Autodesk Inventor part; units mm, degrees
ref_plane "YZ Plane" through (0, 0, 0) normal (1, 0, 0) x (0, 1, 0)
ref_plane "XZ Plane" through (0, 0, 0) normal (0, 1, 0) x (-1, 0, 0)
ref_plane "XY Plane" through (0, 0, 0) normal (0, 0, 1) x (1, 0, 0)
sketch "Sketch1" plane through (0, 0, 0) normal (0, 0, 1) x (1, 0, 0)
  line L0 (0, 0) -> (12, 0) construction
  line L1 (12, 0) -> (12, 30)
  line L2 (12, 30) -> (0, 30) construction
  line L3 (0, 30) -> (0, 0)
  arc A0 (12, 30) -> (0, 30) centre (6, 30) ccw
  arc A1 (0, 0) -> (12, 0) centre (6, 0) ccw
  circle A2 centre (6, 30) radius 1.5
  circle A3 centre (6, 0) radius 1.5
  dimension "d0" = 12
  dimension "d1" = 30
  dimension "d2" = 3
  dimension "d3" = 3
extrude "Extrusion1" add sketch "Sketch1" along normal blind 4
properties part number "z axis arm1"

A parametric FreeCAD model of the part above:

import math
import FreeCAD as App
import Part
import Sketcher
from FreeCAD import Vector

doc = App.newDocument("Part")
body = doc.addObject("PartDesign::Body", "Body")

# Sketch on XY plane
sketch1 = doc.addObject("Sketcher::SketchObject", "Sketch")
body.addObject(sketch1)
sketch1.AttachmentSupport = (doc.XY_Plane, [""])
sketch1.MapMode = "FlatFace"
sketch1.addGeometry([
    Part.ArcOfCircle(Part.Circle(Vector(6, 0, 0), Vector(0, 0, 1), 6), math.radians(180), math.radians(360)),  # 0
    Part.LineSegment(Vector(12, 0, 0), Vector(12, 30, 0)),  # 1
    Part.ArcOfCircle(Part.Circle(Vector(6, 30, 0), Vector(0, 0, 1), 6), math.radians(0), math.radians(180)),  # 2
    Part.LineSegment(Vector(0, 30, 0), Vector(0, 0, 0)),  # 3
    Part.Circle(Vector(6, 0, 0), Vector(0, 0, 1), 1.5),  # 4
    Part.Circle(Vector(6, 30, 0), Vector(0, 0, 1), 1.5),  # 5
], False)
sketch1.addConstraint([
    Sketcher.Constraint("Tangent", 0, 2, 1, 1),
    Sketcher.Constraint("Tangent", 1, 2, 2, 1),
    Sketcher.Constraint("Tangent", 2, 2, 3, 1),
    Sketcher.Constraint("Tangent", 3, 2, 0, 1),
    Sketcher.Constraint("Vertical", 1),
    Sketcher.Constraint("Vertical", 3),
    Sketcher.Constraint("Coincident", 3, 2, -1, 1),
    Sketcher.Constraint("Coincident", 4, 3, 0, 3),
    Sketcher.Constraint("Coincident", 5, 3, 2, 3),
    Sketcher.Constraint("Equal", 4, 5),
    Sketcher.Constraint("Diameter", 4, 3.0),
    Sketcher.Constraint("Radius", 0, 6.0),
    Sketcher.Constraint("DistanceY", 1, 1, 1, 2, 30.0),
])
pad1 = doc.addObject("PartDesign::Pad", "Pad")
body.addObject(pad1)
pad1.Profile = sketch1
pad1.Length = 4

doc.recompute()
